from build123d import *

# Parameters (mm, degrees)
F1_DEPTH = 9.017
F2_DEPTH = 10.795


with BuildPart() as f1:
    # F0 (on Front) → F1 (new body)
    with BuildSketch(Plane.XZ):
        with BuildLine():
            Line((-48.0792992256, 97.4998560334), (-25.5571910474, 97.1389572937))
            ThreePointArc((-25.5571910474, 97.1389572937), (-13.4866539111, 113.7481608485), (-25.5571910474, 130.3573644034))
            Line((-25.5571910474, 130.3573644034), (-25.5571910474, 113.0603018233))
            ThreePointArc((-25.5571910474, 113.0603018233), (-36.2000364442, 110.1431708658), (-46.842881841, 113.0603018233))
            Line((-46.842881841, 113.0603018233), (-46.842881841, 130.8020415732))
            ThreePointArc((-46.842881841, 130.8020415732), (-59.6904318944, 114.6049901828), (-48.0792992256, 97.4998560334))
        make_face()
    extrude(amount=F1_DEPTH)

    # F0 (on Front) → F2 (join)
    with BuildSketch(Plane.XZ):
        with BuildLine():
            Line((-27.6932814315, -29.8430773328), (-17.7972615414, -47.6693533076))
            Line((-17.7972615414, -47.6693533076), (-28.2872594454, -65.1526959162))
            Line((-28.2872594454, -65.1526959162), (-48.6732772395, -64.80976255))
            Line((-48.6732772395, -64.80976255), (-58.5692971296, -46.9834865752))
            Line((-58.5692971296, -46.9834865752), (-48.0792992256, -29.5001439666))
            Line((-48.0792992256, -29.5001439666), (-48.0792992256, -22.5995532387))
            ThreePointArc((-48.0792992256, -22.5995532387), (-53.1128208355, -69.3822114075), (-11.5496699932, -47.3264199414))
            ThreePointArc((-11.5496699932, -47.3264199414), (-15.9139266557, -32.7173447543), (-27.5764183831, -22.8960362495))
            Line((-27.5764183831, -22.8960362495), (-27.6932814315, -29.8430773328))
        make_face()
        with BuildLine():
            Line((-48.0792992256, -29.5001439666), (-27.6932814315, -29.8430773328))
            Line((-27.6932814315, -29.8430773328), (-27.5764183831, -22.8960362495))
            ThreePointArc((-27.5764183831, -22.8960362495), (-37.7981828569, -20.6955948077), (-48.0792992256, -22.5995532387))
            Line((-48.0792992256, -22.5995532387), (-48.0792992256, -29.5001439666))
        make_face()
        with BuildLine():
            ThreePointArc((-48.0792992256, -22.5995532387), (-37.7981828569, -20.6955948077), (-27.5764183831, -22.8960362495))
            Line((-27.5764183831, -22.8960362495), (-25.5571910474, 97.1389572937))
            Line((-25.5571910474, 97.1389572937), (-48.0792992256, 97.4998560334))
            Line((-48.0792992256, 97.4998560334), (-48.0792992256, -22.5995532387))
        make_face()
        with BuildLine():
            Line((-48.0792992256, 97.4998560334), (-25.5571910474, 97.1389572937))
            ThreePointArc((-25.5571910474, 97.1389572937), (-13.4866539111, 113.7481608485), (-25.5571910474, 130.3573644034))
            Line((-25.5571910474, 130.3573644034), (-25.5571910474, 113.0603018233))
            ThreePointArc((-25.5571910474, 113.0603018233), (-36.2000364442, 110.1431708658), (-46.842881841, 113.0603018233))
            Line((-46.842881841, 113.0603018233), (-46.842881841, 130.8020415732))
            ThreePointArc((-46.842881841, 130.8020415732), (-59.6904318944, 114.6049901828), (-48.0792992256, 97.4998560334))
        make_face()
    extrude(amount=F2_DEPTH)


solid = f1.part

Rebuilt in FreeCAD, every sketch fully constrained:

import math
import FreeCAD as App
import Part
import Sketcher
Q = App.Units.Quantity


def add_polygon(sketch, points):
    """Adds a closed chain of lines whose ends are joined by coincident constraints."""
    first, n = sketch.GeometryCount, len(points)
    for a, b in zip(points, points[1:] + points[:1]):
        sketch.addGeometry(Part.LineSegment(App.Vector(*a, 0), App.Vector(*b, 0)), False)
    for i in range(n):
        sketch.addConstraint(Sketcher.Constraint("Coincident", first + i, 2, first + (i + 1) % n, 1))

doc = App.newDocument("Part")
body = doc.addObject("PartDesign::Body", "Body")

sketch1 = doc.addObject("Sketcher::SketchObject", "Sketch")
body.addObject(sketch1)
sketch1.AttachmentSupport = (doc.XZ_Plane, [""])
sketch1.MapMode = "FlatFace"
sketch1.addGeometry(Part.LineSegment(App.Vector(-48, 97, 0), App.Vector(-26, 97, 0)), False)
sketch1.addGeometry(Part.ArcOfCircle(Part.Circle(App.Vector(-31, 114, 0), App.Vector(0, 0, 1), 17), math.radians(-72), math.radians(72)), False)
sketch1.addGeometry(Part.LineSegment(App.Vector(-26, 130, 0), App.Vector(-26, 113, 0)), False)
sketch1.addGeometry(Part.ArcOfCircle(Part.Circle(App.Vector(-36, 131, 0), App.Vector(0, 0, 1), 21), math.radians(-121), math.radians(-59)), False)
sketch1.addGeometry(Part.LineSegment(App.Vector(-47, 113, 0), App.Vector(-47, 131, 0)), False)
sketch1.addGeometry(Part.ArcOfCircle(Part.Circle(App.Vector(-42, 114, 0), App.Vector(0, 0, 1), 17), math.radians(105), math.radians(250)), False)
sketch1.addConstraint(Sketcher.Constraint("Coincident", 0, 2, 1, 1))
sketch1.addConstraint(Sketcher.Constraint("Coincident", 1, 2, 2, 1))
sketch1.addConstraint(Sketcher.Constraint("Coincident", 2, 2, 3, 2))
sketch1.addConstraint(Sketcher.Constraint("Coincident", 3, 1, 4, 1))
sketch1.addConstraint(Sketcher.Constraint("Coincident", 4, 2, 5, 1))
sketch1.addConstraint(Sketcher.Constraint("Coincident", 5, 2, 0, 1))
sketch1.addConstraint(Sketcher.Constraint("Vertical", 2))
sketch1.addConstraint(Sketcher.Constraint("Vertical", 4))
sketch1.addConstraint(Sketcher.Constraint("Equal", 1, 5))
sketch1.addConstraint(Sketcher.Constraint("Horizontal", 2, 2, 3, 1))
sketch1.addConstraint(Sketcher.Constraint("Vertical", 0, 2, 1, 2))
sketch1.addConstraint(Sketcher.Constraint("Radius", 1, Q("0.6875 in")))
sketch1.addConstraint(Sketcher.Constraint("DistanceY", -1, 1, 5, 3, Q("4.4865001 in")))
sketch1.addConstraint(Sketcher.Constraint("Radius", 3, 20.873216))
sketch1.addConstraint(Sketcher.Constraint("Distance", 0, 22.525))
sketch1.addConstraint(Sketcher.Constraint("DistanceY", 4, 1, 4, 2, 17.74174))
sketch1.addConstraint(Sketcher.Constraint("DistanceY", -1, 1, 2, 2, 113.060302))
sketch1.addConstraint(Sketcher.Constraint("DistanceX", 5, 2, -1, 1, 48.079299))
sketch1.addConstraint(Sketcher.Constraint("DistanceX", 5, 3, 1, 3, 11.290801))
sketch1.addConstraint(Sketcher.Constraint("DistanceY", 0, 2, 5, 2, 0.360899))
sketch1.addConstraint(Sketcher.Constraint("DistanceY", 2, 2, 2, 1, 17.297063))
pad1 = doc.addObject("PartDesign::Pad", "Pad")
body.addObject(pad1)
pad1.Profile = sketch1
pad1.Length = Q("0.355 in")

sketch2 = doc.addObject("Sketcher::SketchObject", "Sketch001")
body.addObject(sketch2)
sketch2.AttachmentSupport = (doc.XZ_Plane, [""])
sketch2.MapMode = "FlatFace"
sketch2.addGeometry(Part.ArcOfCircle(Part.Circle(App.Vector(-38, -47, 0), App.Vector(0, 0, 1), 27), math.radians(112), math.radians(360)), False)
sketch2.addGeometry(Part.ArcOfCircle(Part.Circle(App.Vector(-38, -47, 0), App.Vector(0, 0, 1), 27), math.radians(0), math.radians(67)), False)
sketch2.addGeometry(Part.LineSegment(App.Vector(-28, -23, 0), App.Vector(-26, 97, 0)), False)
sketch2.addGeometry(Part.ArcOfCircle(Part.Circle(App.Vector(-31, 114, 0), App.Vector(0, 0, 1), 17), math.radians(-72), math.radians(72)), False)
sketch2.addGeometry(Part.LineSegment(App.Vector(-26, 130, 0), App.Vector(-26, 113, 0)), False)
sketch2.addGeometry(Part.ArcOfCircle(Part.Circle(App.Vector(-36, 131, 0), App.Vector(0, 0, 1), 21), math.radians(-121), math.radians(-59)), False)
sketch2.addGeometry(Part.LineSegment(App.Vector(-47, 113, 0), App.Vector(-47, 131, 0)), False)
sketch2.addGeometry(Part.ArcOfCircle(Part.Circle(App.Vector(-42, 114, 0), App.Vector(0, 0, 1), 17), math.radians(105), math.radians(250)), False)
sketch2.addGeometry(Part.LineSegment(App.Vector(-48, 97, 0), App.Vector(-48, -23, 0)), False)
add_polygon(sketch2, [(-28, -30), (-18, -48), (-28, -65), (-49, -65), (-59, -47), (-48, -30)])
sketch2.addConstraint(Sketcher.Constraint("Tangent", 0, 2, 1, 1))
sketch2.addConstraint(Sketcher.Constraint("Coincident", 1, 2, 2, 1))
sketch2.addConstraint(Sketcher.Constraint("Coincident", 2, 2, 3, 1))
sketch2.addConstraint(Sketcher.Constraint("Coincident", 3, 2, 4, 1))
sketch2.addConstraint(Sketcher.Constraint("Coincident", 4, 2, 5, 2))
sketch2.addConstraint(Sketcher.Constraint("Coincident", 5, 1, 6, 1))
sketch2.addConstraint(Sketcher.Constraint("Coincident", 6, 2, 7, 1))
sketch2.addConstraint(Sketcher.Constraint("Coincident", 7, 2, 8, 1))
sketch2.addConstraint(Sketcher.Constraint("Coincident", 8, 2, 0, 1))
sketch2.addConstraint(Sketcher.Constraint("Vertical", 4))
sketch2.addConstraint(Sketcher.Constraint("Vertical", 6))
sketch2.addConstraint(Sketcher.Constraint("Vertical", 8))
sketch2.addConstraint(Sketcher.Constraint("Equal", 0, 1))
sketch2.addConstraint(Sketcher.Constraint("Equal", 3, 7))
sketch2.addConstraint(Sketcher.Constraint("Perpendicular", 2, 11))
sketch2.addConstraint(Sketcher.Constraint("Parallel", 9, 12))
sketch2.addConstraint(Sketcher.Constraint("Parallel", 10, 13))
sketch2.addConstraint(Sketcher.Constraint("Parallel", 11, 14))
sketch2.addConstraint(Sketcher.Constraint("Horizontal", 1, 3, 0, 2))
sketch2.addConstraint(Sketcher.Constraint("Horizontal", 4, 2, 5, 1))
sketch2.addConstraint(Sketcher.Constraint("Vertical", 2, 2, 3, 2))
sketch2.addConstraint(Sketcher.Constraint("Vertical", 8, 2, 13, 2))
sketch2.addConstraint(Sketcher.Constraint("Equal", 9, 10))
sketch2.addConstraint(Sketcher.Constraint("Equal", 10, 11))
sketch2.addConstraint(Sketcher.Constraint("Equal", 11, 12))
sketch2.addConstraint(Sketcher.Constraint("Radius", 3, Q("0.6875 in")))
sketch2.addConstraint(Sketcher.Constraint("Radius", 0, 26.633609))
sketch2.addConstraint(Sketcher.Constraint("DistanceY", 9, 2, 8, 2, Q("0.987 in")))
sketch2.addConstraint(Sketcher.Constraint("DistanceY", -1, 1, 7, 3, Q("4.4865001 in")))
sketch2.addConstraint(Sketcher.Constraint("Radius", 5, 20.873216))
sketch2.addConstraint(Sketcher.Constraint("DistanceX", 8, 2, 1, 2, Q("0.8072 in")))
sketch2.addConstraint(Sketcher.Constraint("DistanceY", 6, 1, 6, 2, 17.74174))
sketch2.addConstraint(Sketcher.Constraint("DistanceY", 8, 2, 8, 1, 120.099409))
sketch2.addConstraint(Sketcher.Constraint("DistanceY", -1, 1, 4, 2, 113.060302))
sketch2.addConstraint(Sketcher.Constraint("DistanceX", 7, 2, -1, 1, 48.079299))
sketch2.addConstraint(Sketcher.Constraint("DistanceX", 7, 3, 3, 3, 11.290801))
sketch2.addConstraint(Sketcher.Constraint("DistanceY", 1, 2, 3, 2, 153.253401))
sketch2.addConstraint(Sketcher.Constraint("DistanceY", 2, 2, 7, 2, 0.360899))
sketch2.addConstraint(Sketcher.Constraint("DistanceY", 4, 2, 4, 1, 17.297063))
sketch2.addConstraint(Sketcher.Constraint("DistanceX", 0, 3, -1, 1, 38.183279))
sketch2.addConstraint(Sketcher.Constraint("DistanceX", 9, 2, -1, 1, 17.797262))
sketch2.addConstraint(Sketcher.Constraint("DistanceX", 10, 2, -1, 1, 28.287259))
sketch2.addConstraint(Sketcher.Constraint("DistanceX", 14, 2, -1, 1, 27.693281))
pad2 = doc.addObject("PartDesign::Pad", "Pad001")
body.addObject(pad2)
pad2.Profile = sketch2
pad2.Length = Q("0.425 in")

doc.recompute()
